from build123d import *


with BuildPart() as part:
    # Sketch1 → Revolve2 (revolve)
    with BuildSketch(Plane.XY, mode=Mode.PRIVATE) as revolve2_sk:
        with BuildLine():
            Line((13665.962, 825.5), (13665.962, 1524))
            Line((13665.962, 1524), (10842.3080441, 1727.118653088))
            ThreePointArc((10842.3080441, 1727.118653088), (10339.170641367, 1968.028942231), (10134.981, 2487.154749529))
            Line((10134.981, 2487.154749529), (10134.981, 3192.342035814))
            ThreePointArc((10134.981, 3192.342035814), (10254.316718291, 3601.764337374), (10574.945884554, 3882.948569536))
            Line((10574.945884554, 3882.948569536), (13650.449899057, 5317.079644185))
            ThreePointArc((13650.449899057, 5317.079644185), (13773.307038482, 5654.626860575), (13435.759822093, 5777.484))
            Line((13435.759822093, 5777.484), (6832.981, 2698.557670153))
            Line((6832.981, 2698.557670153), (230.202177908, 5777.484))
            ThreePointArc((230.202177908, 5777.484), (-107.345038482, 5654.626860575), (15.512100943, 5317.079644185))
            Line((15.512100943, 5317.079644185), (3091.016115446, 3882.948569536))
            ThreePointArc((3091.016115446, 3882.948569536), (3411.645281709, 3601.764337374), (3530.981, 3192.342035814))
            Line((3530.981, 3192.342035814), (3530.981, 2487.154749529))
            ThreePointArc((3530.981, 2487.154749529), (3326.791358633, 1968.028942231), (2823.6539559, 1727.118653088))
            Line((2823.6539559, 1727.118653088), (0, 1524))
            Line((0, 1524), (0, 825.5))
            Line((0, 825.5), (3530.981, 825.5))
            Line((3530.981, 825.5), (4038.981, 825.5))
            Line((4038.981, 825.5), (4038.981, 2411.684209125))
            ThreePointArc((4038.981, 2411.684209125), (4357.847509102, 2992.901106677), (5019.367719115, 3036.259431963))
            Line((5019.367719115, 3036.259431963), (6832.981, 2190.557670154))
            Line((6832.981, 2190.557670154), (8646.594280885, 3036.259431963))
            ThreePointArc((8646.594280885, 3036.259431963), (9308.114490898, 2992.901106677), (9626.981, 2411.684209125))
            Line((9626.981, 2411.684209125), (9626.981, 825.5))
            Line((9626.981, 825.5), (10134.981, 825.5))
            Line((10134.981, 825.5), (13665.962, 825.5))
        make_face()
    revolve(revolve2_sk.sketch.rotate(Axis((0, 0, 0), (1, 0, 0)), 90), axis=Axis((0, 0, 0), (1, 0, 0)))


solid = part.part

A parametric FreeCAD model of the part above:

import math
import FreeCAD as App
import Part
import Sketcher
from FreeCAD import Vector
Q = App.Units.Quantity

doc = App.newDocument("Part")
params = doc.addObject("Spreadsheet::Sheet", "Params")
for row, (alias, value) in enumerate([
    ("sketch1_radius", "30 in"),
    ("sketch1_radius2", "10 in"),
    ("sketch1_height", "27.5 in"),
    ("sketch1_width", "159.015 in"),
    ("revolution_angle", "360 deg"),
], start=1):
    params.set(f"A{row}", alias)
    params.set(f"B{row}", "=" + value)
    params.setAlias(f"B{row}", alias)

body = doc.addObject("PartDesign::Body", "Body")

sketch1 = body.newObject("Sketcher::SketchObject", "Sketch")
sketch1.AttachmentSupport = (doc.getObject("XY_Plane"), [""])
sketch1.MapMode = "FlatFace"
sketch1.addGeometry([
    Part.LineSegment(Vector(13665.962, 825.5, 0), Vector(13665.962, 1524, 0)),
    Part.LineSegment(Vector(13665.962, 1524, 0), Vector(10842.308044, 1727.118653, 0)),
    Part.ArcOfCircle(Part.Circle(Vector(10896.981, 2487.15475, 0), Vector(0, 0, 1), 762), math.radians(180), math.radians(265.885533)),
    Part.LineSegment(Vector(10134.981, 2487.15475, 0), Vector(10134.981, 3192.342036, 0)),
    Part.ArcOfCircle(Part.Circle(Vector(10896.981, 3192.342036, 0), Vector(0, 0, 1), 762), math.radians(115), math.radians(180)),
    Part.LineSegment(Vector(10574.945885, 3882.94857, 0), Vector(13650.449899, 5317.079644, 0)),
    Part.ArcOfCircle(Part.Circle(Vector(13543.104861, 5547.281822, 0), Vector(0, 0, 1), 254), math.radians(-65), math.radians(115)),
    Part.LineSegment(Vector(13435.759822, 5777.484, 0), Vector(6832.981, 2698.55767, 0)),
    Part.LineSegment(Vector(6832.981, 2698.55767, 0), Vector(230.202178, 5777.484, 0)),
    Part.ArcOfCircle(Part.Circle(Vector(122.857139, 5547.281822, 0), Vector(0, 0, 1), 254), math.radians(65), math.radians(245)),
    Part.LineSegment(Vector(15.512101, 5317.079644, 0), Vector(3091.016115, 3882.94857, 0)),
    Part.ArcOfCircle(Part.Circle(Vector(2768.981, 3192.342036, 0), Vector(0, 0, 1), 762), math.radians(0), math.radians(65)),
    Part.LineSegment(Vector(3530.981, 3192.342036, 0), Vector(3530.981, 2487.15475, 0)),
    Part.ArcOfCircle(Part.Circle(Vector(2768.981, 2487.15475, 0), Vector(0, 0, 1), 762), math.radians(-85.885533), math.radians(0)),
    Part.LineSegment(Vector(2823.653956, 1727.118653, 0), Vector(0, 1524, 0)),
    Part.LineSegment(Vector(0, 1524, 0), Vector(0, 825.5, 0)),
    Part.LineSegment(Vector(0, 825.5, 0), Vector(4038.981, 825.5, 0)),
    Part.LineSegment(Vector(4038.981, 825.5, 0), Vector(4038.981, 2411.684209, 0)),
    Part.ArcOfCircle(Part.Circle(Vector(4728.12351, 2411.684209, 0), Vector(0, 0, 1), 689.14251), math.radians(65), math.radians(180)),
    Part.LineSegment(Vector(5019.367719, 3036.259432, 0), Vector(6832.981, 2190.55767, 0)),
    Part.LineSegment(Vector(6832.981, 2190.55767, 0), Vector(8646.594281, 3036.259432, 0)),
    Part.ArcOfCircle(Part.Circle(Vector(8937.83849, 2411.684209, 0), Vector(0, 0, 1), 689.14251), math.radians(0), math.radians(115)),
    Part.LineSegment(Vector(9626.981, 2411.684209, 0), Vector(9626.981, 825.5, 0)),
    Part.LineSegment(Vector(9626.981, 825.5, 0), Vector(13665.962, 825.5, 0)),
], False)
sketch1.addConstraint([
    Sketcher.Constraint("Coincident", 0, 2, 1, 1),
    Sketcher.Constraint("Coincident", 1, 2, 2, 2),
    Sketcher.Constraint("Tangent", 2, 1, 3, 1),
    Sketcher.Constraint("Tangent", 3, 2, 4, 2),
    Sketcher.Constraint("Coincident", 4, 1, 5, 1),
    Sketcher.Constraint("Tangent", 5, 2, 6, 1),
    Sketcher.Constraint("Tangent", 6, 2, 7, 1),
    Sketcher.Constraint("Coincident", 7, 2, 8, 1),
    Sketcher.Constraint("Tangent", 8, 2, 9, 1),
    Sketcher.Constraint("Tangent", 9, 2, 10, 1),
    Sketcher.Constraint("Coincident", 10, 2, 11, 2),
    Sketcher.Constraint("Tangent", 11, 1, 12, 1),
    Sketcher.Constraint("Tangent", 12, 2, 13, 2),
    Sketcher.Constraint("Coincident", 13, 1, 14, 1),
    Sketcher.Constraint("Coincident", 14, 2, 15, 1),
    Sketcher.Constraint("Coincident", 15, 2, 16, 1),
    Sketcher.Constraint("Coincident", 16, 2, 17, 1),
    Sketcher.Constraint("Tangent", 17, 2, 18, 2),
    Sketcher.Constraint("Tangent", 18, 1, 19, 1),
    Sketcher.Constraint("Coincident", 19, 2, 20, 1),
    Sketcher.Constraint("Tangent", 20, 2, 21, 2),
    Sketcher.Constraint("Tangent", 21, 1, 22, 1),
    Sketcher.Constraint("Coincident", 22, 2, 23, 1),
    Sketcher.Constraint("Coincident", 23, 2, 0, 1),
    Sketcher.Constraint("Vertical", 0),
    Sketcher.Constraint("Vertical", 3),
    Sketcher.Constraint("Vertical", 12),
    Sketcher.Constraint("Vertical", 15),
    Sketcher.Constraint("Horizontal", 16),
    Sketcher.Constraint("Vertical", 17),
    Sketcher.Constraint("Vertical", 22),
    Sketcher.Constraint("Horizontal", 23),
    Sketcher.Constraint("Equal", 2, 4),
    Sketcher.Constraint("Equal", 6, 9),
    Sketcher.Constraint("Equal", 4, 11),
    Sketcher.Constraint("Equal", 11, 13),
    Sketcher.Constraint("Equal", 18, 21),
    Sketcher.Constraint("PointOnObject", 14, 2, -2),
    Sketcher.Constraint("Parallel", 5, 7),
    Sketcher.Constraint("Parallel", 8, 10),
    Sketcher.Constraint("Parallel", 10, 19),
    Sketcher.Constraint("Parallel", 7, 20),
    Sketcher.Constraint("Horizontal", 6, 3, 9, 3),
    Sketcher.Constraint("Horizontal", 4, 3, 11, 3),
    Sketcher.Constraint("Horizontal", 2, 3, 13, 3),
    Sketcher.Constraint("Horizontal", 18, 3, 21, 3),
    Sketcher.Constraint("Horizontal", 0, 2, 14, 2),
    Sketcher.Constraint("Horizontal", 16, 2, 22, 2),
    Sketcher.Constraint("Vertical", 7, 2, 19, 2),
    Sketcher.Constraint("Equal", 16, 23),
    Sketcher.Constraint("Equal", 7, 8),
    Sketcher.Constraint("Equal", 5, 10),
    Sketcher.Constraint("Equal", 1, 14),
    Sketcher.Constraint("Radius", 2, Q("30 in")),
    Sketcher.Constraint("Radius", 6, Q("10 in")),
    Sketcher.Constraint("DistanceY", 0, 1, 0, 2, Q("27.5 in")),
    Sketcher.Constraint("DistanceY", -1, 1, 0, 2, Q("60 in")),
    Sketcher.Constraint("Angle", 5, Q("25 deg")),
    Sketcher.Constraint("DistanceX", 11, 3, 4, 3, Q("320 in")),
    Sketcher.Constraint("DistanceX", 12, 2, 16, 2, Q("20 in")),
    Sketcher.Constraint("DistanceY", 19, 2, 7, 2, Q("20 in")),
    Sketcher.Constraint("DistanceX", 16, 1, 16, 2, Q("159.015 in")),
    Sketcher.Constraint("DistanceY", -1, 1, 6, 2, Q("227.46 in")),
    Sketcher.Constraint("Radius", 18, 689.14251),
    Sketcher.Constraint("DistanceY", 1, 2, 21, 3, Q("26.9513998 in")),
    Sketcher.Constraint("DistanceY", 17, 1, 17, 2, 1586.184209),
    Sketcher.Constraint("Distance", 5, 3393.443219),
    Sketcher.Constraint("DistanceY", 3, 1, 3, 2, 705.187286),
])
sketch1.setExpression("Constraints[53]", "Params.sketch1_radius")
sketch1.setExpression("Constraints[54]", "Params.sketch1_radius2")
sketch1.setExpression("Constraints[55]", "Params.sketch1_height")
sketch1.setExpression("Constraints[61]", "Params.sketch1_width")
revolution = body.newObject("PartDesign::Revolution", "Revolution")
revolution.Profile = sketch1
revolution.ReferenceAxis = (sketch1, ["H_Axis"])
revolution.setExpression("Angle", "Params.revolution_angle")

doc.recompute()
